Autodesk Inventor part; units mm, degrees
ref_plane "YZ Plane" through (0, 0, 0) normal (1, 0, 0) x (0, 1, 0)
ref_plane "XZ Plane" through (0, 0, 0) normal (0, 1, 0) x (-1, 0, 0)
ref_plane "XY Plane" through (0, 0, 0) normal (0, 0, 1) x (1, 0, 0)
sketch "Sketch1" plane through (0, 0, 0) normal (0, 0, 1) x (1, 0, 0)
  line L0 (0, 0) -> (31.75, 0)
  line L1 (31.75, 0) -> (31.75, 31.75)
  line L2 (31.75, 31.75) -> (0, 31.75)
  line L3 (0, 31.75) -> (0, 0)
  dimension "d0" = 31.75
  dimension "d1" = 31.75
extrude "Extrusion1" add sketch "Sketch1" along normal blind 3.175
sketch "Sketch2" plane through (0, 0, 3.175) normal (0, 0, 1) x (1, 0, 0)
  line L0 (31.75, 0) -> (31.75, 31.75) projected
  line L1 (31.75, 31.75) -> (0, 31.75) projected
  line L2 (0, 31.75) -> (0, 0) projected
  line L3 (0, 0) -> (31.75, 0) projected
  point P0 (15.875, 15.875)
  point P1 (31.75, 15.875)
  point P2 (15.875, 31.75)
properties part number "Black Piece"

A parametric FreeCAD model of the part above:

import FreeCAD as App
import Part
import Sketcher
Q = App.Units.Quantity

doc = App.newDocument("Part")
params = doc.addObject("Spreadsheet::Sheet", "Params")
for row, (alias, value) in enumerate([
    ("sketch1_width", "1.25 in"),
    ("pad1_length", "0.125 in"),
], start=1):
    params.set(f"A{row}", alias)
    params.set(f"B{row}", "=" + value)
    params.setAlias(f"B{row}", alias)

body = doc.addObject("PartDesign::Body", "Body")

sketch1 = body.newObject("Sketcher::SketchObject", "Sketch")
sketch1.AttachmentSupport = (doc.getObject("XY_Plane"), [""])
sketch1.MapMode = "FlatFace"
sketch1.addGeometry([
    Part.LineSegment(App.Vector(0, 32, 0), App.Vector(0, 0, 0)),
    Part.LineSegment(App.Vector(0, 0, 0), App.Vector(32, 0, 0)),
    Part.LineSegment(App.Vector(32, 0, 0), App.Vector(32, 32, 0)),
    Part.LineSegment(App.Vector(32, 32, 0), App.Vector(0, 32, 0)),
], False)
sketch1.addConstraint([
    Sketcher.Constraint("Coincident", 0, 2, 1, 1),
    Sketcher.Constraint("Coincident", 1, 2, 2, 1),
    Sketcher.Constraint("Coincident", 2, 2, 3, 1),
    Sketcher.Constraint("Coincident", 3, 2, 0, 1),
    Sketcher.Constraint("Vertical", 0),
    Sketcher.Constraint("Horizontal", 1),
    Sketcher.Constraint("Vertical", 2),
    Sketcher.Constraint("Horizontal", 3),
    Sketcher.Constraint("Coincident", 0, 2, -1, 1),
    Sketcher.Constraint("Equal", 3, 0),
    Sketcher.Constraint("DistanceX", 1, 1, 1, 2, Q("1.25 in")),
])
sketch1.setExpression("Constraints[10]", "Params.sketch1_width")
pad1 = body.newObject("PartDesign::Pad", "Pad")
pad1.Profile = sketch1
pad1.setExpression("Length", "Params.pad1_length")

doc.recompute()
